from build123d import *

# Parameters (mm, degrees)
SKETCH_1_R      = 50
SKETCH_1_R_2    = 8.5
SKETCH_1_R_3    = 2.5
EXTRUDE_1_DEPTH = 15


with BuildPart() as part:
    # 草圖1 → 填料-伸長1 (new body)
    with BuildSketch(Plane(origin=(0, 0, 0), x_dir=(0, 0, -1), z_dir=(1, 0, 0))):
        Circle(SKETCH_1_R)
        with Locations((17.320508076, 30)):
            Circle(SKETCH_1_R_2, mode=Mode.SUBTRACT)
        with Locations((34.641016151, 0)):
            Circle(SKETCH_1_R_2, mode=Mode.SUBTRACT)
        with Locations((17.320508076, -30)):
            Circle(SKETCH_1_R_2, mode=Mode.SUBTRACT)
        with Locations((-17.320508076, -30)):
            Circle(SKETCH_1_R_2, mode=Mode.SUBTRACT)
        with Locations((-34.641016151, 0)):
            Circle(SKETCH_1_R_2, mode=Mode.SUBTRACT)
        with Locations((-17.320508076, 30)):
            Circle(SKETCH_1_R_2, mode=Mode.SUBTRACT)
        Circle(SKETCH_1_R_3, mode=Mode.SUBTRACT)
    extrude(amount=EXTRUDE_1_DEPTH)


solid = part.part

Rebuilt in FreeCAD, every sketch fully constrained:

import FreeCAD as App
import Part
import Sketcher
from FreeCAD import Vector

doc = App.newDocument("Part")
body = doc.addObject("PartDesign::Body", "Body")

# Sketch on YZ plane
sketch1 = body.newObject("Sketcher::SketchObject", "Sketch")
sketch1.AttachmentSupport = (doc.getObject("YZ_Plane"), [""])
sketch1.MapMode = "FlatFace"
sketch1.addGeometry([
    Part.Circle(Vector(0, 0, 0), Vector(0, 0, 1), 50),  # 0
    Part.Circle(Vector(-30, 17.320508, 0), Vector(0, 0, 1), 8.5),  # 1
    Part.Circle(Vector(-30, -17.320508, 0), Vector(0, 0, 1), 8.5),  # 2
    Part.Circle(Vector(0, 34.641016, 0), Vector(0, 0, 1), 8.5),  # 3
    Part.Circle(Vector(30, 17.320508, 0), Vector(0, 0, 1), 8.5),  # 4
    Part.Circle(Vector(0, 0, 0), Vector(0, 0, 1), 2.5),  # 5
    Part.Circle(Vector(0, -34.641016, 0), Vector(0, 0, 1), 8.5),  # 6
    Part.Circle(Vector(30, -17.320508, 0), Vector(0, 0, 1), 8.5),  # 7
], False)
sketch1.addConstraint([
    Sketcher.Constraint("Coincident", 0, 3, -1, 1),
    Sketcher.Constraint("Coincident", 5, 3, -1, 1),
    Sketcher.Constraint("Equal", 1, 2),
    Sketcher.Constraint("Equal", 2, 3),
    Sketcher.Constraint("Equal", 3, 4),
    Sketcher.Constraint("Equal", 4, 6),
    Sketcher.Constraint("Equal", 6, 7),
    Sketcher.Constraint("Symmetric", 2, 3, 4, 3, -1, 1),
    Sketcher.Constraint("Symmetric", 3, 3, 6, 3, -1, 1),
    Sketcher.Constraint("Symmetric", 1, 3, 7, 3, -1, 1),
    Sketcher.Constraint("Symmetric", 1, 3, 4, 3, -2),
    Sketcher.Constraint("PointOnObject", 3, 3, -2),
    Sketcher.Constraint("Diameter", 0, 100.0),
    Sketcher.Constraint("Diameter", 1, 17.0),
    Sketcher.Constraint("Diameter", 5, 5.0),
    Sketcher.Constraint("DistanceX", 1, 3, -1, 1, 30.0),
    Sketcher.Constraint("DistanceY", -1, 1, 1, 3, 17.320508),
    Sketcher.Constraint("DistanceY", 1, 3, 3, 3, 17.320508),
])
pad1 = body.newObject("PartDesign::Pad", "Pad")
pad1.Profile = sketch1
pad1.Length = 15

doc.recompute()
